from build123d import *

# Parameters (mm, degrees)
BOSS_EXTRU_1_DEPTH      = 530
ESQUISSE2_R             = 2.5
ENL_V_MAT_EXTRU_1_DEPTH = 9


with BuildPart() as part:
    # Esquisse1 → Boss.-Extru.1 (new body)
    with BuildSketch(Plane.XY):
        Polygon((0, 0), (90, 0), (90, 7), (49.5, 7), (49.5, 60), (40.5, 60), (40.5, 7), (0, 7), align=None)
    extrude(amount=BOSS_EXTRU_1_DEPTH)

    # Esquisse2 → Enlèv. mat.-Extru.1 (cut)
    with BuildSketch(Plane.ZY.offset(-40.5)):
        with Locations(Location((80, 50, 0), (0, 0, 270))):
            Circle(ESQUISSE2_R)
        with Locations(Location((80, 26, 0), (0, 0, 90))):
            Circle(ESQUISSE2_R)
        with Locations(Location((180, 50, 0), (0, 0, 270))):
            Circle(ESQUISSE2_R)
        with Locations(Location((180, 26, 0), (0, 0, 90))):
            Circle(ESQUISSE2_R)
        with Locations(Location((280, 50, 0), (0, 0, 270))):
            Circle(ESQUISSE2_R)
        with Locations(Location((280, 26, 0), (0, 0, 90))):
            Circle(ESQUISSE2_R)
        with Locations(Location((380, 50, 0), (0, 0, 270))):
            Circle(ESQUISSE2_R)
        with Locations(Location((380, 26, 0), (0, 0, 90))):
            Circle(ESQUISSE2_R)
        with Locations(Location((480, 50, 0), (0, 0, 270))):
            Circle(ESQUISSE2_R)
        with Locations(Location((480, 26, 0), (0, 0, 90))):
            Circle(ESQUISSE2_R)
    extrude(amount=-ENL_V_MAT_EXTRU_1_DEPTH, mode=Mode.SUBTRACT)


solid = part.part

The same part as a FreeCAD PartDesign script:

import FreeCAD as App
import Part
import Sketcher
from FreeCAD import Vector


def add_polygon(sketch, points):
    """Adds a closed chain of lines whose ends are joined by coincident constraints."""
    first, n = sketch.GeometryCount, len(points)
    for a, b in zip(points, points[1:] + points[:1]):
        sketch.addGeometry(Part.LineSegment(App.Vector(*a, 0), App.Vector(*b, 0)), False)
    for i in range(n):
        sketch.addConstraint(Sketcher.Constraint("Coincident", first + i, 2, first + (i + 1) % n, 1))

doc = App.newDocument("Part")
body = doc.addObject("PartDesign::Body", "Body")

# Sketch on XY plane
sketch1 = doc.addObject("Sketcher::SketchObject", "Sketch")
body.addObject(sketch1)
sketch1.AttachmentSupport = (doc.XY_Plane, [""])
sketch1.MapMode = "FlatFace"
add_polygon(sketch1, [(0, 0), (90, 0), (90, 7), (50, 7), (50, 60), (40, 60), (40, 7), (0, 7)])  # lines 0-7
sketch1.addConstraint([
    Sketcher.Constraint("Horizontal", 0),
    Sketcher.Constraint("Vertical", 1),
    Sketcher.Constraint("Horizontal", 2),
    Sketcher.Constraint("Vertical", 3),
    Sketcher.Constraint("Horizontal", 4),
    Sketcher.Constraint("Vertical", 5),
    Sketcher.Constraint("Horizontal", 6),
    Sketcher.Constraint("Vertical", 7),
    Sketcher.Constraint("Coincident", 7, 2, -1, 1),
    Sketcher.Constraint("Horizontal", 2, 2, 5, 2),
    Sketcher.Constraint("Equal", 2, 6),
    Sketcher.Constraint("DistanceX", 0, 1, 0, 2, 90.0),
    Sketcher.Constraint("DistanceX", 4, 2, 4, 1, 9.0),
    Sketcher.Constraint("DistanceY", 1, 1, 1, 2, 7.0),
    Sketcher.Constraint("DistanceY", 3, 1, 3, 2, 53.0),
])
pad1 = doc.addObject("PartDesign::Pad", "Pad")
body.addObject(pad1)
pad1.Profile = sketch1
pad1.Length = 530

# Sketch on YZ plane
sketch2 = doc.addObject("Sketcher::SketchObject", "Sketch001")
body.addObject(sketch2)
sketch2.AttachmentSupport = (doc.YZ_Plane, [""])
sketch2.MapMode = "FlatFace"
sketch2.AttachmentOffset = App.Placement(Vector(0, 0, 40.5), App.Rotation())
sketch2.addGeometry([
    Part.Circle(Vector(50, 80, 0), Vector(0, 0, 1), 2.5),  # 0
    Part.Circle(Vector(26, 80, 0), Vector(0, 0, 1), 2.5),  # 1
    Part.Circle(Vector(50, 180, 0), Vector(0, 0, 1), 2.5),  # 2
    Part.Circle(Vector(26, 180, 0), Vector(0, 0, 1), 2.5),  # 3
    Part.Circle(Vector(50, 280, 0), Vector(0, 0, 1), 2.5),  # 4
    Part.Circle(Vector(26, 280, 0), Vector(0, 0, 1), 2.5),  # 5
    Part.Circle(Vector(50, 380, 0), Vector(0, 0, 1), 2.5),  # 6
    Part.Circle(Vector(26, 380, 0), Vector(0, 0, 1), 2.5),  # 7
    Part.Circle(Vector(50, 480, 0), Vector(0, 0, 1), 2.5),  # 8
    Part.Circle(Vector(26, 480, 0), Vector(0, 0, 1), 2.5),  # 9
], False)
sketch2.addConstraint([
    Sketcher.Constraint("Equal", 0, 1),
    Sketcher.Constraint("Equal", 1, 2),
    Sketcher.Constraint("Equal", 2, 3),
    Sketcher.Constraint("Equal", 3, 4),
    Sketcher.Constraint("Equal", 4, 5),
    Sketcher.Constraint("Equal", 5, 6),
    Sketcher.Constraint("Equal", 6, 7),
    Sketcher.Constraint("Equal", 7, 8),
    Sketcher.Constraint("Equal", 8, 9),
    Sketcher.Constraint("Horizontal", 0, 3, 1, 3),
    Sketcher.Constraint("Horizontal", 2, 3, 3, 3),
    Sketcher.Constraint("Horizontal", 4, 3, 5, 3),
    Sketcher.Constraint("Horizontal", 6, 3, 7, 3),
    Sketcher.Constraint("Horizontal", 8, 3, 9, 3),
    Sketcher.Constraint("Vertical", 0, 3, 2, 3),
    Sketcher.Constraint("Vertical", 1, 3, 3, 3),
    Sketcher.Constraint("Vertical", 2, 3, 4, 3),
    Sketcher.Constraint("Vertical", 3, 3, 5, 3),
    Sketcher.Constraint("Vertical", 4, 3, 6, 3),
    Sketcher.Constraint("Vertical", 5, 3, 7, 3),
    Sketcher.Constraint("Vertical", 6, 3, 8, 3),
    Sketcher.Constraint("Vertical", 7, 3, 9, 3),
    Sketcher.Constraint("Diameter", 0, 5.0),
    Sketcher.Constraint("DistanceX", -1, 1, 0, 3, 50.0),
    Sketcher.Constraint("DistanceY", -1, 1, 0, 3, 80.0),
    Sketcher.Constraint("DistanceX", -1, 1, 1, 3, 26.0),
    Sketcher.Constraint("DistanceY", -1, 1, 2, 3, 180.0),
    Sketcher.Constraint("DistanceY", -1, 1, 4, 3, 280.0),
    Sketcher.Constraint("DistanceY", -1, 1, 6, 3, 380.0),
    Sketcher.Constraint("DistanceY", -1, 1, 8, 3, 480.0),
])
pocket1 = doc.addObject("PartDesign::Pocket", "Pocket")
body.addObject(pocket1)
pocket1.Profile = sketch2
pocket1.Length = 9
pocket1.Reversed = True

doc.recompute()
